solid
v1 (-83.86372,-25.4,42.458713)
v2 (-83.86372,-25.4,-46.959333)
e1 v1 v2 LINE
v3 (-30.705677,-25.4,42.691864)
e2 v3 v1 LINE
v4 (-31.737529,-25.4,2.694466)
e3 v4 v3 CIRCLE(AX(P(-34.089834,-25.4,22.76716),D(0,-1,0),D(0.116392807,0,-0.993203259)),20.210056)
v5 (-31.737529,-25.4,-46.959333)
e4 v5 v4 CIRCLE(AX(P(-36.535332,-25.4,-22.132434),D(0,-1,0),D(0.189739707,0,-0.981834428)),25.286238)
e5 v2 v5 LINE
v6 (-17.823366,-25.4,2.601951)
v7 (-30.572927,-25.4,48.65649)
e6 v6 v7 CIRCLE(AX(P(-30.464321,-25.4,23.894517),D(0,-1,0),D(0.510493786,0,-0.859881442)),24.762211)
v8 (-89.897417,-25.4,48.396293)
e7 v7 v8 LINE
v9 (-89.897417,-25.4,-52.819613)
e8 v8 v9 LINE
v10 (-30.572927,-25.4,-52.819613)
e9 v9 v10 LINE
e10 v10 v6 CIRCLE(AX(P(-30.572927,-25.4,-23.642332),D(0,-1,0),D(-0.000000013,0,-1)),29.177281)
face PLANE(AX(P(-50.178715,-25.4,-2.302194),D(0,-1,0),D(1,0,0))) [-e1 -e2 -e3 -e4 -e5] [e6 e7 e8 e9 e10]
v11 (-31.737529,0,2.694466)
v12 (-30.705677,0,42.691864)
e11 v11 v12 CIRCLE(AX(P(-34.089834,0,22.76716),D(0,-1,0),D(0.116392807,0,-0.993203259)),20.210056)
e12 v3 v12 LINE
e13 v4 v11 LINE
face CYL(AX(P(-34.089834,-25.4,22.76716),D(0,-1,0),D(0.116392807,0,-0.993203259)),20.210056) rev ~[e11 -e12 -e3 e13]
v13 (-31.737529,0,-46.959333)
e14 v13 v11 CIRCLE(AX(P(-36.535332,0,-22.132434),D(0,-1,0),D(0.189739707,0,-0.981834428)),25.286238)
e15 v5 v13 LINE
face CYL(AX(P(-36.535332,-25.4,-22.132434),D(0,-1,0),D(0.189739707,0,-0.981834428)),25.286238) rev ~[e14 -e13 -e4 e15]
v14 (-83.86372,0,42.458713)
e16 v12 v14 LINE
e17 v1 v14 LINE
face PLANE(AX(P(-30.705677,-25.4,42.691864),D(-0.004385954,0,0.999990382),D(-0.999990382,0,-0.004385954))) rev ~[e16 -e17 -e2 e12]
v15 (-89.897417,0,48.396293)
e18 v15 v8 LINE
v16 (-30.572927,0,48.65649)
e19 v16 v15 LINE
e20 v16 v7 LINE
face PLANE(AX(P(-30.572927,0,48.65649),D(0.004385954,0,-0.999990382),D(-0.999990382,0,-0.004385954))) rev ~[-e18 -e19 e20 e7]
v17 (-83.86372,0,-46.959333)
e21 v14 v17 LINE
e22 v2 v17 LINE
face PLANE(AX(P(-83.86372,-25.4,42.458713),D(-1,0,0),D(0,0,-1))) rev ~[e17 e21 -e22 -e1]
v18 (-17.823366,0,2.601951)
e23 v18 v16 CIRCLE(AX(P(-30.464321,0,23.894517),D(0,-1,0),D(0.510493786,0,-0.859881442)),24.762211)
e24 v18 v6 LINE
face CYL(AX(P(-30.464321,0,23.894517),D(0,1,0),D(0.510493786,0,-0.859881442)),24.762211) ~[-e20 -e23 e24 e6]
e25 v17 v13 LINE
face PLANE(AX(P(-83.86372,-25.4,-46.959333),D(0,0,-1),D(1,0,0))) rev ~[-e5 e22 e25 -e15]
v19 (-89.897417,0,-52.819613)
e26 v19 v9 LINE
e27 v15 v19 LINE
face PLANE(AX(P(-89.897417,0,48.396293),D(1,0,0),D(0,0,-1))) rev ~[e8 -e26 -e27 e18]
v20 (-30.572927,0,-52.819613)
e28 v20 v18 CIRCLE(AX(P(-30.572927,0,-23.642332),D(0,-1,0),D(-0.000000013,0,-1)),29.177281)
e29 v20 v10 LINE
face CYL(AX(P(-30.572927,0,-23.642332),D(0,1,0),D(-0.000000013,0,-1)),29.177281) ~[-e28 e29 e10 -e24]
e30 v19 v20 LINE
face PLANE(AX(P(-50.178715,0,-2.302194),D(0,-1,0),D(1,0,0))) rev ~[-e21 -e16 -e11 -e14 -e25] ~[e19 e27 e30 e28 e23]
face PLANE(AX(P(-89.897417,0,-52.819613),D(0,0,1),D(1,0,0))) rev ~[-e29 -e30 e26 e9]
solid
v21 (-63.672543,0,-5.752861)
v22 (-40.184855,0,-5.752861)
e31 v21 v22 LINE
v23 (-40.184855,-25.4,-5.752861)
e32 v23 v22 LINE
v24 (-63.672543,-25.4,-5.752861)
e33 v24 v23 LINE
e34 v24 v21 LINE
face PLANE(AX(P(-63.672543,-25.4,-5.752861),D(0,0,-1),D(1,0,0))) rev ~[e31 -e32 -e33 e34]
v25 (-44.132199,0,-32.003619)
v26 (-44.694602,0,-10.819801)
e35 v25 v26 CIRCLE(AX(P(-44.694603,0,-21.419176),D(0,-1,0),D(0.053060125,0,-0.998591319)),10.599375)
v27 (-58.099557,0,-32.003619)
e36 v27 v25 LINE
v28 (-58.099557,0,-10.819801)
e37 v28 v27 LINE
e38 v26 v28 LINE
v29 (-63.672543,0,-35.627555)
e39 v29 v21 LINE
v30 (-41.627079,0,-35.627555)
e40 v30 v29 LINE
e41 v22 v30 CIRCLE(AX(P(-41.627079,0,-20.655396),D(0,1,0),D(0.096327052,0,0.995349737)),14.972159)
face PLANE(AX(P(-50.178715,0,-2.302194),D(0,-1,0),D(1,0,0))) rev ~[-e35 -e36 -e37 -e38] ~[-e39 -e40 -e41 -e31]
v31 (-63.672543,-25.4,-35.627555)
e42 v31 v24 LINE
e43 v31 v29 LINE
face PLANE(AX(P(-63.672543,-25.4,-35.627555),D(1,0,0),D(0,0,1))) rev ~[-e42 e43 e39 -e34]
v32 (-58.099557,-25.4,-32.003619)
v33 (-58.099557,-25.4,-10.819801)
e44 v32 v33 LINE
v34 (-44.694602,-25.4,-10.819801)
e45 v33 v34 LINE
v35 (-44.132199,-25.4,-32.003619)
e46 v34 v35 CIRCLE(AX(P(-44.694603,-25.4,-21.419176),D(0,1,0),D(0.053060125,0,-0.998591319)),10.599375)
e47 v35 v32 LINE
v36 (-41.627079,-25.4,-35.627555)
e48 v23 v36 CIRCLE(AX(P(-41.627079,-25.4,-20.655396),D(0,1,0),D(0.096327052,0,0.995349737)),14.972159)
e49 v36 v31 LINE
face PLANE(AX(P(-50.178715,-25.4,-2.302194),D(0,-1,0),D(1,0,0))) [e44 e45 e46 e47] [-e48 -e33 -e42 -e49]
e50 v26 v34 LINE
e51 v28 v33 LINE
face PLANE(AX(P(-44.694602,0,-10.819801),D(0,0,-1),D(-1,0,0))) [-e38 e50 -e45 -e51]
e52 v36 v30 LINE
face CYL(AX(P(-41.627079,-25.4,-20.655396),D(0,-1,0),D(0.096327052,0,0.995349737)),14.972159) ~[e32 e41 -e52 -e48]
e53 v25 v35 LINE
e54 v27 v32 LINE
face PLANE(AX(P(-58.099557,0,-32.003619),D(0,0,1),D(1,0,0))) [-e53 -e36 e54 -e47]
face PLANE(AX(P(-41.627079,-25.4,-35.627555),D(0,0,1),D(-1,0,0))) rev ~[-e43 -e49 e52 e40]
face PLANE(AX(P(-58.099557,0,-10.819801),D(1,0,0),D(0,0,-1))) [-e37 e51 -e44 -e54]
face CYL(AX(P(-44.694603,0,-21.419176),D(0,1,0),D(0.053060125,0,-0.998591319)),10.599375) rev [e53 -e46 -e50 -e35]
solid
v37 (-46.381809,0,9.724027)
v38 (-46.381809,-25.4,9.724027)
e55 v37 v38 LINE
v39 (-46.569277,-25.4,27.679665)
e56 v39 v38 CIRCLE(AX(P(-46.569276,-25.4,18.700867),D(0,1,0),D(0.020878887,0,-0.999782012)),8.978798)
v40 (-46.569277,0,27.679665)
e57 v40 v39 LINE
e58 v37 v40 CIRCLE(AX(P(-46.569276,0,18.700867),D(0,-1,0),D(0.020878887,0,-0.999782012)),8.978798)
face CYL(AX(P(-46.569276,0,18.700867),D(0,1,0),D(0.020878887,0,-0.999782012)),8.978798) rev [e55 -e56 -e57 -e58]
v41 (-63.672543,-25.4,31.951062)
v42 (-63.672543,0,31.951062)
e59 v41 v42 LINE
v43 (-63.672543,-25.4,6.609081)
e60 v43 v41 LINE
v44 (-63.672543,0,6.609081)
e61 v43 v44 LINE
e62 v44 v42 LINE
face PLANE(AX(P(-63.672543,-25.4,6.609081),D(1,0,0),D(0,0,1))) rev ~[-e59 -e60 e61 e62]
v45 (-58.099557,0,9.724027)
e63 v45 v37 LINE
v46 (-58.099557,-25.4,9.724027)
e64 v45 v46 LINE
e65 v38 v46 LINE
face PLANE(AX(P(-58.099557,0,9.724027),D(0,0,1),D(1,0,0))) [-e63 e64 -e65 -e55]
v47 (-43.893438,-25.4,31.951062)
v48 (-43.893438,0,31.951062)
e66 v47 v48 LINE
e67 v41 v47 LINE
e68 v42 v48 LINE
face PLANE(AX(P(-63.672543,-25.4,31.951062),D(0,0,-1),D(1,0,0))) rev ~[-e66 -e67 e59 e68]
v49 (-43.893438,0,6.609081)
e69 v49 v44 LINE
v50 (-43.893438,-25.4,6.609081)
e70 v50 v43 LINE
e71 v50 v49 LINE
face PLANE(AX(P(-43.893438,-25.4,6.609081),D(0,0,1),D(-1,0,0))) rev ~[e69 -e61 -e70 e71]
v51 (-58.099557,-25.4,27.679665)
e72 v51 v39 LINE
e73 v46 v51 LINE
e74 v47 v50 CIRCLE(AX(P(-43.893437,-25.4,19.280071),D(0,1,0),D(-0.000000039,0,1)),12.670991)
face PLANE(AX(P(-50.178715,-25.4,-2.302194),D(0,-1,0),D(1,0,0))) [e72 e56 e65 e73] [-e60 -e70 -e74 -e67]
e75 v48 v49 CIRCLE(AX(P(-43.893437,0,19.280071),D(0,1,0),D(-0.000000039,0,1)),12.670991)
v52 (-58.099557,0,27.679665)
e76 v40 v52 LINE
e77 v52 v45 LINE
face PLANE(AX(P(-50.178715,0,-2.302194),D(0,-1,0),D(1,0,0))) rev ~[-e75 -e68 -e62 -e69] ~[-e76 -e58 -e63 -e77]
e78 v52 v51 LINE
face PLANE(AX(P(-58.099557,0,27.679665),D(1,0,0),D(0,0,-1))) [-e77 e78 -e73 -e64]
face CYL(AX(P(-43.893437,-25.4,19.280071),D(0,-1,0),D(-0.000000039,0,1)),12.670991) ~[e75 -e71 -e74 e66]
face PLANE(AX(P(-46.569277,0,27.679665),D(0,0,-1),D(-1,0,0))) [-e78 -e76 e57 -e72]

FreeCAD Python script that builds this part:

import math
import FreeCAD as App
import Part
import Sketcher

V = App.Vector
Q = App.Units.Quantity

doc = App.newDocument("Part")
body = doc.addObject("PartDesign::Body", "Body")
body.AllowCompound = True

sketch1 = body.newObject("Sketcher::SketchObject", "Sketch")
sketch1.AttachmentSupport = (doc.getObject("XZ_Plane"), [""])
sketch1.MapMode = "FlatFace"
sketch1.addGeometry([
    Part.LineSegment(V(-30.572927, 48.65649, 0), V(-89.897417, 48.396293, 0)),
    Part.LineSegment(V(-89.897417, 48.396293, 0), V(-89.897417, -52.819613, 0)),
    Part.LineSegment(V(-89.897417, -52.819613, 0), V(-30.572927, -52.819613, 0)),
    Part.ArcOfCircle(Part.Circle(V(-30.572927, -23.642332, 0), V(0, 0, 1), 29.177281), math.radians(-90.000001), math.radians(64.089363)),
    Part.ArcOfCircle(Part.Circle(V(-30.464321, 23.894517, 0), V(0, 0, 1), 24.762211), math.radians(-59.303274), math.radians(90.251298)),
], False)
sketch1.addConstraint([
    Sketcher.Constraint("Coincident", 0, 2, 1, 1),
    Sketcher.Constraint("Coincident", 1, 2, 2, 1),
    Sketcher.Constraint("Coincident", 2, 2, 3, 1),
    Sketcher.Constraint("Coincident", 3, 2, 4, 1),
    Sketcher.Constraint("Coincident", 4, 2, 0, 1),
    Sketcher.Constraint("Vertical", 1),
    Sketcher.Constraint("Horizontal", 2),
    Sketcher.Constraint("Radius", 3, 29.177281),
    Sketcher.Constraint("Radius", 4, 24.762211),
    Sketcher.Constraint("DistanceX", 2, 1, 2, 2, 59.32449),
    Sketcher.Constraint("Distance", 0, 59.325061),
    Sketcher.Constraint("DistanceY", 1, 2, 1, 1, 101.215906),
    Sketcher.Constraint("DistanceX", 4, 3, -1, 1, 30.464321),
    Sketcher.Constraint("DistanceY", -1, 1, 3, 2, 2.601951),
    Sketcher.Constraint("DistanceY", -1, 1, 4, 2, 48.65649),
    Sketcher.Constraint("DistanceY", 3, 3, 4, 3, 47.536849),
    Sketcher.Constraint("DistanceX", 0, 2, 3, 3, 59.32449),
])
pad1 = body.newObject("PartDesign::Pad", "Pad")
pad1.Profile = sketch1
pad1.Length = Q("1 in")

sketch2 = body.newObject("Sketcher::SketchObject", "Sketch001")
sketch2.AttachmentSupport = (doc.getObject("XZ_Plane"), [""])
sketch2.MapMode = "FlatFace"
sketch2.addGeometry([
    Part.LineSegment(V(-47, 28, 0), V(-58, 28, 0)),
    Part.LineSegment(V(-58, 28, 0), V(-58, 10, 0)),
    Part.LineSegment(V(-58, 10, 0), V(-46, 10, 0)),
    Part.ArcOfCircle(Part.Circle(V(-47, 19, 0), V(0, 0, 1), 9), math.radians(-89), math.radians(90)),
    Part.LineSegment(V(-45, -11, 0), V(-58, -11, 0)),
    Part.LineSegment(V(-58, -11, 0), V(-58, -32, 0)),
    Part.LineSegment(V(-58, -32, 0), V(-44, -32, 0)),
    Part.ArcOfCircle(Part.Circle(V(-45, -21, 0), V(0, 0, 1), 11), math.radians(-87), math.radians(90)),
], False)
sketch2.addConstraint([
    Sketcher.Constraint("Coincident", 0, 2, 1, 1),
    Sketcher.Constraint("Coincident", 1, 2, 2, 1),
    Sketcher.Constraint("Coincident", 2, 2, 3, 1),
    Sketcher.Constraint("Tangent", 3, 2, 0, 1),
    Sketcher.Constraint("Coincident", 4, 2, 5, 1),
    Sketcher.Constraint("Coincident", 5, 2, 6, 1),
    Sketcher.Constraint("Coincident", 6, 2, 7, 1),
    Sketcher.Constraint("Tangent", 7, 2, 4, 1),
    Sketcher.Constraint("Horizontal", 0),
    Sketcher.Constraint("Vertical", 1),
    Sketcher.Constraint("Horizontal", 2),
    Sketcher.Constraint("Horizontal", 4),
    Sketcher.Constraint("Vertical", 5),
    Sketcher.Constraint("Horizontal", 6),
    Sketcher.Constraint("Vertical", 1, 2, 4, 2),
    Sketcher.Constraint("Radius", 3, 8.978798),
    Sketcher.Constraint("Radius", 7, 10.599375),
    Sketcher.Constraint("DistanceX", 0, 2, 0, 1, 11.53028),
    Sketcher.Constraint("DistanceY", 1, 2, 1, 1, 17.955638),
    Sketcher.Constraint("DistanceY", 5, 2, 5, 1, 21.183818),
    Sketcher.Constraint("DistanceY", 4, 2, -1, 1, 10.819801),
    Sketcher.Constraint("DistanceX", 6, 2, -1, 1, 44.132199),
    Sketcher.Constraint("DistanceX", 4, 2, 4, 1, 13.404955),
    Sketcher.Constraint("DistanceY", 7, 3, 0, 2, 49.098841),
])
pocket1 = body.newObject("PartDesign::Pocket", "Pocket")
pocket1.Profile = sketch2
pocket1.Length = Q("1 in")

sketch3 = body.newObject("Sketcher::SketchObject", "Sketch002")
sketch3.AttachmentSupport = (doc.getObject("XZ_Plane"), [""])
sketch3.MapMode = "FlatFace"
sketch3.addGeometry([
    Part.LineSegment(V(-47, 28, 0), V(-58, 28, 0)),
    Part.LineSegment(V(-58, 28, 0), V(-58, 10, 0)),
    Part.LineSegment(V(-58, 10, 0), V(-46, 10, 0)),
    Part.ArcOfCircle(Part.Circle(V(-47, 19, 0), V(0, 0, 1), 9), math.radians(-89), math.radians(90)),
    Part.LineSegment(V(-45, -11, 0), V(-58, -11, 0)),
    Part.LineSegment(V(-58, -11, 0), V(-58, -32, 0)),
    Part.LineSegment(V(-58, -32, 0), V(-44, -32, 0)),
    Part.ArcOfCircle(Part.Circle(V(-45, -21, 0), V(0, 0, 1), 11), math.radians(-87), math.radians(90)),
], False)
sketch3.addConstraint([
    Sketcher.Constraint("Coincident", 0, 2, 1, 1),
    Sketcher.Constraint("Coincident", 1, 2, 2, 1),
    Sketcher.Constraint("Coincident", 2, 2, 3, 1),
    Sketcher.Constraint("Tangent", 3, 2, 0, 1),
    Sketcher.Constraint("Coincident", 4, 2, 5, 1),
    Sketcher.Constraint("Coincident", 5, 2, 6, 1),
    Sketcher.Constraint("Coincident", 6, 2, 7, 1),
    Sketcher.Constraint("Tangent", 7, 2, 4, 1),
    Sketcher.Constraint("Horizontal", 0),
    Sketcher.Constraint("Vertical", 1),
    Sketcher.Constraint("Horizontal", 2),
    Sketcher.Constraint("Horizontal", 4),
    Sketcher.Constraint("Vertical", 5),
    Sketcher.Constraint("Horizontal", 6),
    Sketcher.Constraint("Vertical", 1, 2, 4, 2),
    Sketcher.Constraint("Radius", 3, 8.978798),
    Sketcher.Constraint("Radius", 7, 10.599375),
    Sketcher.Constraint("DistanceX", 0, 2, 0, 1, 11.53028),
    Sketcher.Constraint("DistanceY", 1, 2, 1, 1, 17.955638),
    Sketcher.Constraint("DistanceY", 5, 2, 5, 1, 21.183818),
    Sketcher.Constraint("DistanceY", 4, 2, -1, 1, 10.819801),
    Sketcher.Constraint("DistanceX", 6, 2, -1, 1, 44.132199),
    Sketcher.Constraint("DistanceX", 4, 2, 4, 1, 13.404955),
    Sketcher.Constraint("DistanceY", 7, 3, 0, 2, 49.098841),
])
pocket2 = body.newObject("PartDesign::Pocket", "Pocket001")
pocket2.Profile = sketch3
pocket2.Length = Q("2.12 in")
pocket2.Reversed = True

sketch4 = body.newObject("Sketcher::SketchObject", "Sketch003")
sketch4.AttachmentSupport = (doc.getObject("XZ_Plane"), [""])
sketch4.MapMode = "FlatFace"
sketch4.AttachmentOffset = App.Placement(V(0, 0, 1 * 25.4), App.Rotation())
sketch4.addGeometry([
    Part.LineSegment(V(-31, 43, 0), V(-84, 42, 0)),
    Part.LineSegment(V(-84, 42, 0), V(-84, -47, 0)),
    Part.LineSegment(V(-84, -47, 0), V(-32, -47, 0)),
    Part.ArcOfCircle(Part.Circle(V(-37, -22, 0), V(0, 0, 1), 25), math.radians(-79), math.radians(79)),
    Part.ArcOfCircle(Part.Circle(V(-34, 23, 0), V(0, 0, 1), 20), math.radians(-83), math.radians(80)),
    Part.ArcOfCircle(Part.Circle(V(-42, -21, 0), V(0, 0, 1), 15), math.radians(-90), math.radians(84)),
    Part.LineSegment(V(-42, -36, 0), V(-64, -36, 0)),
    Part.LineSegment(V(-64, -36, 0), V(-64, -6, 0)),
    Part.LineSegment(V(-64, -6, 0), V(-40, -6, 0)),
    Part.LineSegment(V(-44, 7, 0), V(-64, 7, 0)),
    Part.LineSegment(V(-64, 7, 0), V(-64, 32, 0)),
    Part.LineSegment(V(-64, 32, 0), V(-44, 32, 0)),
    Part.ArcOfCircle(Part.Circle(V(-44, 19, 0), V(0, 0, 1), 13), math.radians(-90), math.radians(90)),
], False)
sketch4.addConstraint([
    Sketcher.Constraint("Coincident", 0, 2, 1, 1),
    Sketcher.Constraint("Coincident", 1, 2, 2, 1),
    Sketcher.Constraint("Coincident", 2, 2, 3, 1),
    Sketcher.Constraint("Coincident", 3, 2, 4, 1),
    Sketcher.Constraint("Coincident", 4, 2, 0, 1),
    Sketcher.Constraint("Tangent", 5, 1, 6, 1),
    Sketcher.Constraint("Coincident", 6, 2, 7, 1),
    Sketcher.Constraint("Coincident", 7, 2, 8, 1),
    Sketcher.Constraint("Coincident", 8, 2, 5, 2),
    Sketcher.Constraint("Coincident", 9, 2, 10, 1),
    Sketcher.Constraint("Coincident", 10, 2, 11, 1),
    Sketcher.Constraint("Tangent", 11, 2, 12, 2),
    Sketcher.Constraint("Tangent", 12, 1, 9, 1),
    Sketcher.Constraint("Vertical", 1),
    Sketcher.Constraint("Horizontal", 2),
    Sketcher.Constraint("Horizontal", 6),
    Sketcher.Constraint("Vertical", 7),
    Sketcher.Constraint("Horizontal", 8),
    Sketcher.Constraint("Horizontal", 9),
    Sketcher.Constraint("Vertical", 10),
    Sketcher.Constraint("Horizontal", 11),
    Sketcher.Constraint("Vertical", 2, 2, 3, 2),
    Sketcher.Constraint("Vertical", 7, 2, 9, 2),
    Sketcher.Constraint("Radius", 3, 25.286238),
    Sketcher.Constraint("Radius", 5, 14.972159),
    Sketcher.Constraint("Radius", 12, 12.670991),
    Sketcher.Constraint("DistanceY", -1, 1, 9, 2, Q("0.2602 in")),
    Sketcher.Constraint("Radius", 4, 20.210056),
    Sketcher.Constraint("DistanceX", 2, 1, 2, 2, 52.126191),
    Sketcher.Constraint("DistanceX", 3, 3, 4, 3, 2.445498),
    Sketcher.Constraint("DistanceY", 1, 2, 3, 3, 24.826899),
    Sketcher.Constraint("DistanceY", 3, 2, 4, 2, 39.997398),
    Sketcher.Constraint("DistanceX", 5, 3, 4, 2, 10.921402),
    Sketcher.Constraint("DistanceY", 10, 2, 4, 2, 10.740802),
    Sketcher.Constraint("DistanceX", 6, 2, 6, 1, 22.045464),
    Sketcher.Constraint("DistanceX", 8, 1, 8, 2, 23.487688),
    Sketcher.Constraint("DistanceX", 9, 2, 9, 1, 19.779105),
    Sketcher.Constraint("DistanceY", 1, 2, 1, 1, 89.418046),
    Sketcher.Constraint("DistanceX", 5, 3, -1, 1, 41.627079),
    Sketcher.Constraint("DistanceY", 7, 2, -1, 1, 5.752861),
])
pocket3 = body.newObject("PartDesign::Pocket", "Pocket002")
pocket3.Profile = sketch4
pocket3.Length = Q("1 in")

doc.recompute()
